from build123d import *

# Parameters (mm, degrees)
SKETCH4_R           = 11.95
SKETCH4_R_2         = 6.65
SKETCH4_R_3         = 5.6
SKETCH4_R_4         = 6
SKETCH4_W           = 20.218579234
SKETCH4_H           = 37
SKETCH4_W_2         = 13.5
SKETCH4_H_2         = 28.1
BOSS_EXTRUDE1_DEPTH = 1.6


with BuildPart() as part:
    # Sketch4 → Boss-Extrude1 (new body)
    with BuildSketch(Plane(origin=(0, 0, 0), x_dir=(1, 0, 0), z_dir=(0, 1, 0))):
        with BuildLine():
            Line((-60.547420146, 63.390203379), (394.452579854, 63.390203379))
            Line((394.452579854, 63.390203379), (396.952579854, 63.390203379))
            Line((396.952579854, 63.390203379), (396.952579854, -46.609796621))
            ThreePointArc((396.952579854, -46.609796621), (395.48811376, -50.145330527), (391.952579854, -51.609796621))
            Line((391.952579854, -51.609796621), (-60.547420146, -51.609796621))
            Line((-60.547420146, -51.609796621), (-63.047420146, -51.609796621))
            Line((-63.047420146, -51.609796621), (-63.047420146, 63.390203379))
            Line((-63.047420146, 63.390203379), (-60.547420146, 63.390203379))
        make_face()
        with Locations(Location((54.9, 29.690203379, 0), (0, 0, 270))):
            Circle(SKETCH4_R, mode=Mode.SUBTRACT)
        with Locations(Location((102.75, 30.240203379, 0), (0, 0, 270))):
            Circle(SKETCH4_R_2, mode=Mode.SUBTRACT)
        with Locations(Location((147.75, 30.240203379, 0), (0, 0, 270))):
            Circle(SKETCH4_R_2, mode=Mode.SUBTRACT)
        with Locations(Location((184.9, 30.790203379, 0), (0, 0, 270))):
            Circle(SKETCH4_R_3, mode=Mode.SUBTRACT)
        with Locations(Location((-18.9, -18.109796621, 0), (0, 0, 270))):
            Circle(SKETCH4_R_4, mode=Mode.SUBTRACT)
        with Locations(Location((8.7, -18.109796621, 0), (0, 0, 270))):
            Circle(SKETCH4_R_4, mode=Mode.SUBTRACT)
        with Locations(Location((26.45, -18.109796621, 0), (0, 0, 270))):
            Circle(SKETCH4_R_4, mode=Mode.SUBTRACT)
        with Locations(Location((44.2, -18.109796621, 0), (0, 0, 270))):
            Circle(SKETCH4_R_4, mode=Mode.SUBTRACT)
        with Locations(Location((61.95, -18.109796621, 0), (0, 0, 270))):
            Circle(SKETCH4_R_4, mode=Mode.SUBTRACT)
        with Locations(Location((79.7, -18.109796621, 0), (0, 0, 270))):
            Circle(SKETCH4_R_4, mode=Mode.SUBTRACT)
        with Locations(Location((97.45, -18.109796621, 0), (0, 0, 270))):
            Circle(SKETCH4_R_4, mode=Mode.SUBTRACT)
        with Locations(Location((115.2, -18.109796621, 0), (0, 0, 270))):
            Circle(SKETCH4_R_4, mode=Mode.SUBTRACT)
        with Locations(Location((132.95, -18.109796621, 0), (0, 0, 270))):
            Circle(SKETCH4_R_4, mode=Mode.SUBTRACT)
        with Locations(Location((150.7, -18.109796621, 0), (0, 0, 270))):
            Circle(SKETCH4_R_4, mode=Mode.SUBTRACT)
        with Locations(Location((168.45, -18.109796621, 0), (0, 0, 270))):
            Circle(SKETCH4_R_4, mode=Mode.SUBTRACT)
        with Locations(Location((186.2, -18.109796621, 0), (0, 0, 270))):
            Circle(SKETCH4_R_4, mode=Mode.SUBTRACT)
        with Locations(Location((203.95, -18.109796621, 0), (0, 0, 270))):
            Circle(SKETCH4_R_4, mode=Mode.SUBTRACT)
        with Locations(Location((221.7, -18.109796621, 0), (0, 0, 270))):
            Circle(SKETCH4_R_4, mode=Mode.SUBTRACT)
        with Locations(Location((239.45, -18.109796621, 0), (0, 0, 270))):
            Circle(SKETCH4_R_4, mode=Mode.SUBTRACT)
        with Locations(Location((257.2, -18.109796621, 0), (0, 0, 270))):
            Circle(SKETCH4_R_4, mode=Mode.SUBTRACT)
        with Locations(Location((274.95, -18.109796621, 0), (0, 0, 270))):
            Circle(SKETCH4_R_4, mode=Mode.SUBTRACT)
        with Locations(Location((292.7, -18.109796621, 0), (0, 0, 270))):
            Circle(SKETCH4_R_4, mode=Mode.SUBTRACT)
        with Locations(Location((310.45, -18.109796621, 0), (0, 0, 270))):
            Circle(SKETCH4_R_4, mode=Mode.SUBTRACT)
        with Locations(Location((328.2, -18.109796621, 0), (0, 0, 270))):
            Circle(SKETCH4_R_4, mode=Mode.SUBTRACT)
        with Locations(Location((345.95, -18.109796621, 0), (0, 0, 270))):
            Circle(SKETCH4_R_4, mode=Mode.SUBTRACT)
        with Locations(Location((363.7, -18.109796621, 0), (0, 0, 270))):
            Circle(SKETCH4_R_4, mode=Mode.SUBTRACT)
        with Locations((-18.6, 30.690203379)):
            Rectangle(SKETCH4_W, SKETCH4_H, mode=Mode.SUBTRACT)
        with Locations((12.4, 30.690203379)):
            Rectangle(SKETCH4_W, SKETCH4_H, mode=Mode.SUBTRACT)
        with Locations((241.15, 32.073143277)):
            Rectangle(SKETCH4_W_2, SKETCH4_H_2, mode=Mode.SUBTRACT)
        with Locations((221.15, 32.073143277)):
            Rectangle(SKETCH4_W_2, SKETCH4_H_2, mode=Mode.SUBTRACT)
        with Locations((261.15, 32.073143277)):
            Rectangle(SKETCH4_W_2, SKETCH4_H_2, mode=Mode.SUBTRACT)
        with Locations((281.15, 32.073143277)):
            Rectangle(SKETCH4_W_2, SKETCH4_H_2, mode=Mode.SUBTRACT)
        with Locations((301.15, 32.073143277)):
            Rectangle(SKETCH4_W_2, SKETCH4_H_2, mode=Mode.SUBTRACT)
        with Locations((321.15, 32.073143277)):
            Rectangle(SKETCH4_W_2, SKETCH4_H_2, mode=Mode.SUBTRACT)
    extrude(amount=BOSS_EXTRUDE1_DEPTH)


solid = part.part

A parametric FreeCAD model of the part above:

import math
import FreeCAD as App
import Part
import Sketcher
from FreeCAD import Vector

doc = App.newDocument("Part")
params = doc.addObject("Spreadsheet::Sheet", "Params")
for row, (alias, value) in enumerate([
    ("sketch1_diameter", "12 mm"),
    ("sketch1_radius", "5 mm"),
    ("sketch1_diameter2", "11.2 mm"),
    ("sketch1_diameter3", "13.3 mm"),
    ("sketch1_diameter4", "23.9 mm"),
    ("pad1_length", "1.6 mm"),
], start=1):
    params.set(f"A{row}", alias)
    params.set(f"B{row}", "=" + value)
    params.setAlias(f"B{row}", alias)

body = doc.addObject("PartDesign::Body", "Body")

# Sketch on XZ plane
sketch1 = body.newObject("Sketcher::SketchObject", "Sketch")
sketch1.AttachmentSupport = (doc.getObject("XZ_Plane"), [""])
sketch1.MapMode = "FlatFace"
sketch1.addGeometry(Part.LineSegment(Vector(397, 47, 0), Vector(397, -63, 0)), False)
sketch1.addGeometry(Part.LineSegment(Vector(397, -63, 0), Vector(-63, -63, 0)), False)
sketch1.addGeometry(Part.LineSegment(Vector(-63, -63, 0), Vector(-63, 52, 0)), False)
sketch1.addGeometry(Part.LineSegment(Vector(-63, 52, 0), Vector(392, 52, 0)), False)
sketch1.addGeometry(Part.ArcOfCircle(Part.Circle(Vector(392, 47, 0), Vector(0, 0, 1), 5), math.radians(0), math.radians(90)), False)
sketch1.addGeometry(Part.Circle(Vector(364, 18, 0), Vector(0, 0, 1), 6), False)
sketch1.addGeometry(Part.Circle(Vector(346, 18, 0), Vector(0, 0, 1), 6), False)
sketch1.addGeometry(Part.Circle(Vector(328, 18, 0), Vector(0, 0, 1), 6), False)
sketch1.addGeometry(Part.Circle(Vector(310, 18, 0), Vector(0, 0, 1), 6), False)
sketch1.addGeometry(Part.Circle(Vector(293, 18, 0), Vector(0, 0, 1), 6), False)
sketch1.addGeometry(Part.Circle(Vector(275, 18, 0), Vector(0, 0, 1), 6), False)
sketch1.addGeometry(Part.Circle(Vector(257, 18, 0), Vector(0, 0, 1), 6), False)
sketch1.addGeometry(Part.Circle(Vector(239, 18, 0), Vector(0, 0, 1), 6), False)
sketch1.addGeometry(Part.Circle(Vector(222, 18, 0), Vector(0, 0, 1), 6), False)
sketch1.addGeometry(Part.Circle(Vector(204, 18, 0), Vector(0, 0, 1), 6), False)
sketch1.addGeometry(Part.Circle(Vector(186, 18, 0), Vector(0, 0, 1), 6), False)
sketch1.addGeometry(Part.Circle(Vector(168, 18, 0), Vector(0, 0, 1), 6), False)
sketch1.addGeometry(Part.Circle(Vector(151, 18, 0), Vector(0, 0, 1), 6), False)
sketch1.addGeometry(Part.Circle(Vector(133, 18, 0), Vector(0, 0, 1), 6), False)
sketch1.addGeometry(Part.Circle(Vector(115, 18, 0), Vector(0, 0, 1), 6), False)
sketch1.addGeometry(Part.Circle(Vector(97, 18, 0), Vector(0, 0, 1), 6), False)
sketch1.addGeometry(Part.Circle(Vector(80, 18, 0), Vector(0, 0, 1), 6), False)
sketch1.addGeometry(Part.Circle(Vector(62, 18, 0), Vector(0, 0, 1), 6), False)
sketch1.addGeometry(Part.Circle(Vector(44, 18, 0), Vector(0, 0, 1), 6), False)
sketch1.addGeometry(Part.Circle(Vector(26, 18, 0), Vector(0, 0, 1), 6), False)
sketch1.addGeometry(Part.Circle(Vector(9, 18, 0), Vector(0, 0, 1), 6), False)
sketch1.addGeometry(Part.Circle(Vector(-19, 18, 0), Vector(0, 0, 1), 6), False)
sketch1.addGeometry(Part.Circle(Vector(185, -31, 0), Vector(0, 0, 1), 6), False)
sketch1.addGeometry(Part.LineSegment(Vector(314, -18, 0), Vector(314, -46, 0)), False)
sketch1.addGeometry(Part.LineSegment(Vector(314, -46, 0), Vector(328, -46, 0)), False)
sketch1.addGeometry(Part.LineSegment(Vector(328, -46, 0), Vector(328, -18, 0)), False)
sketch1.addGeometry(Part.LineSegment(Vector(328, -18, 0), Vector(314, -18, 0)), False)
sketch1.addGeometry(Part.LineSegment(Vector(294, -18, 0), Vector(294, -46, 0)), False)
sketch1.addGeometry(Part.LineSegment(Vector(294, -46, 0), Vector(308, -46, 0)), False)
sketch1.addGeometry(Part.LineSegment(Vector(308, -46, 0), Vector(308, -18, 0)), False)
sketch1.addGeometry(Part.LineSegment(Vector(308, -18, 0), Vector(294, -18, 0)), False)
sketch1.addGeometry(Part.LineSegment(Vector(274, -18, 0), Vector(274, -46, 0)), False)
sketch1.addGeometry(Part.LineSegment(Vector(274, -46, 0), Vector(288, -46, 0)), False)
sketch1.addGeometry(Part.LineSegment(Vector(288, -46, 0), Vector(288, -18, 0)), False)
sketch1.addGeometry(Part.LineSegment(Vector(288, -18, 0), Vector(274, -18, 0)), False)
sketch1.addGeometry(Part.LineSegment(Vector(254, -18, 0), Vector(254, -46, 0)), False)
sketch1.addGeometry(Part.LineSegment(Vector(254, -46, 0), Vector(268, -46, 0)), False)
sketch1.addGeometry(Part.LineSegment(Vector(268, -46, 0), Vector(268, -18, 0)), False)
sketch1.addGeometry(Part.LineSegment(Vector(268, -18, 0), Vector(254, -18, 0)), False)
sketch1.addGeometry(Part.LineSegment(Vector(234, -18, 0), Vector(234, -46, 0)), False)
sketch1.addGeometry(Part.LineSegment(Vector(234, -46, 0), Vector(248, -46, 0)), False)
sketch1.addGeometry(Part.LineSegment(Vector(248, -46, 0), Vector(248, -18, 0)), False)
sketch1.addGeometry(Part.LineSegment(Vector(248, -18, 0), Vector(234, -18, 0)), False)
sketch1.addGeometry(Part.LineSegment(Vector(214, -18, 0), Vector(214, -46, 0)), False)
sketch1.addGeometry(Part.LineSegment(Vector(214, -46, 0), Vector(228, -46, 0)), False)
sketch1.addGeometry(Part.LineSegment(Vector(228, -46, 0), Vector(228, -18, 0)), False)
sketch1.addGeometry(Part.LineSegment(Vector(228, -18, 0), Vector(214, -18, 0)), False)
sketch1.addGeometry(Part.Circle(Vector(148, -30, 0), Vector(0, 0, 1), 7), False)
sketch1.addGeometry(Part.Circle(Vector(103, -30, 0), Vector(0, 0, 1), 7), False)
sketch1.addGeometry(Part.Circle(Vector(55, -30, 0), Vector(0, 0, 1), 12), False)
sketch1.addGeometry(Part.LineSegment(Vector(2, -12, 0), Vector(2, -49, 0)), False)
sketch1.addGeometry(Part.LineSegment(Vector(2, -49, 0), Vector(23, -49, 0)), False)
sketch1.addGeometry(Part.LineSegment(Vector(23, -49, 0), Vector(23, -12, 0)), False)
sketch1.addGeometry(Part.LineSegment(Vector(23, -12, 0), Vector(2, -12, 0)), False)
sketch1.addGeometry(Part.LineSegment(Vector(-29, -12, 0), Vector(-29, -49, 0)), False)
sketch1.addGeometry(Part.LineSegment(Vector(-29, -49, 0), Vector(-8, -49, 0)), False)
sketch1.addGeometry(Part.LineSegment(Vector(-8, -49, 0), Vector(-8, -12, 0)), False)
sketch1.addGeometry(Part.LineSegment(Vector(-8, -12, 0), Vector(-29, -12, 0)), False)
sketch1.addConstraint(Sketcher.Constraint("Coincident", 0, 2, 1, 1))
sketch1.addConstraint(Sketcher.Constraint("Coincident", 1, 2, 2, 1))
sketch1.addConstraint(Sketcher.Constraint("Coincident", 2, 2, 3, 1))
sketch1.addConstraint(Sketcher.Constraint("Tangent", 3, 2, 4, 2))
sketch1.addConstraint(Sketcher.Constraint("Tangent", 4, 1, 0, 1))
sketch1.addConstraint(Sketcher.Constraint("Coincident", 28, 2, 29, 1))
sketch1.addConstraint(Sketcher.Constraint("Coincident", 29, 2, 30, 1))
sketch1.addConstraint(Sketcher.Constraint("Coincident", 30, 2, 31, 1))
sketch1.addConstraint(Sketcher.Constraint("Coincident", 31, 2, 28, 1))
sketch1.addConstraint(Sketcher.Constraint("Coincident", 32, 2, 33, 1))
sketch1.addConstraint(Sketcher.Constraint("Coincident", 33, 2, 34, 1))
sketch1.addConstraint(Sketcher.Constraint("Coincident", 34, 2, 35, 1))
sketch1.addConstraint(Sketcher.Constraint("Coincident", 35, 2, 32, 1))
sketch1.addConstraint(Sketcher.Constraint("Coincident", 36, 2, 37, 1))
sketch1.addConstraint(Sketcher.Constraint("Coincident", 37, 2, 38, 1))
sketch1.addConstraint(Sketcher.Constraint("Coincident", 38, 2, 39, 1))
sketch1.addConstraint(Sketcher.Constraint("Coincident", 39, 2, 36, 1))
sketch1.addConstraint(Sketcher.Constraint("Coincident", 40, 2, 41, 1))
sketch1.addConstraint(Sketcher.Constraint("Coincident", 41, 2, 42, 1))
sketch1.addConstraint(Sketcher.Constraint("Coincident", 42, 2, 43, 1))
sketch1.addConstraint(Sketcher.Constraint("Coincident", 43, 2, 40, 1))
sketch1.addConstraint(Sketcher.Constraint("Coincident", 44, 2, 45, 1))
sketch1.addConstraint(Sketcher.Constraint("Coincident", 45, 2, 46, 1))
sketch1.addConstraint(Sketcher.Constraint("Coincident", 46, 2, 47, 1))
sketch1.addConstraint(Sketcher.Constraint("Coincident", 47, 2, 44, 1))
sketch1.addConstraint(Sketcher.Constraint("Coincident", 48, 2, 49, 1))
sketch1.addConstraint(Sketcher.Constraint("Coincident", 49, 2, 50, 1))
sketch1.addConstraint(Sketcher.Constraint("Coincident", 50, 2, 51, 1))
sketch1.addConstraint(Sketcher.Constraint("Coincident", 51, 2, 48, 1))
sketch1.addConstraint(Sketcher.Constraint("Coincident", 55, 2, 56, 1))
sketch1.addConstraint(Sketcher.Constraint("Coincident", 56, 2, 57, 1))
sketch1.addConstraint(Sketcher.Constraint("Coincident", 57, 2, 58, 1))
sketch1.addConstraint(Sketcher.Constraint("Coincident", 58, 2, 55, 1))
sketch1.addConstraint(Sketcher.Constraint("Coincident", 59, 2, 60, 1))
sketch1.addConstraint(Sketcher.Constraint("Coincident", 60, 2, 61, 1))
sketch1.addConstraint(Sketcher.Constraint("Coincident", 61, 2, 62, 1))
sketch1.addConstraint(Sketcher.Constraint("Coincident", 62, 2, 59, 1))
sketch1.addConstraint(Sketcher.Constraint("Vertical", 0))
sketch1.addConstraint(Sketcher.Constraint("Horizontal", 1))
sketch1.addConstraint(Sketcher.Constraint("Vertical", 2))
sketch1.addConstraint(Sketcher.Constraint("Horizontal", 3))
sketch1.addConstraint(Sketcher.Constraint("Vertical", 28))
sketch1.addConstraint(Sketcher.Constraint("Horizontal", 29))
sketch1.addConstraint(Sketcher.Constraint("Vertical", 30))
sketch1.addConstraint(Sketcher.Constraint("Horizontal", 31))
sketch1.addConstraint(Sketcher.Constraint("Vertical", 32))
sketch1.addConstraint(Sketcher.Constraint("Horizontal", 33))
sketch1.addConstraint(Sketcher.Constraint("Vertical", 34))
sketch1.addConstraint(Sketcher.Constraint("Horizontal", 35))
sketch1.addConstraint(Sketcher.Constraint("Vertical", 36))
sketch1.addConstraint(Sketcher.Constraint("Horizontal", 37))
sketch1.addConstraint(Sketcher.Constraint("Vertical", 38))
sketch1.addConstraint(Sketcher.Constraint("Horizontal", 39))
sketch1.addConstraint(Sketcher.Constraint("Vertical", 40))
sketch1.addConstraint(Sketcher.Constraint("Horizontal", 41))
sketch1.addConstraint(Sketcher.Constraint("Vertical", 42))
sketch1.addConstraint(Sketcher.Constraint("Horizontal", 43))
sketch1.addConstraint(Sketcher.Constraint("Vertical", 44))
sketch1.addConstraint(Sketcher.Constraint("Horizontal", 45))
sketch1.addConstraint(Sketcher.Constraint("Vertical", 46))
sketch1.addConstraint(Sketcher.Constraint("Horizontal", 47))
sketch1.addConstraint(Sketcher.Constraint("Vertical", 48))
sketch1.addConstraint(Sketcher.Constraint("Horizontal", 49))
sketch1.addConstraint(Sketcher.Constraint("Vertical", 50))
sketch1.addConstraint(Sketcher.Constraint("Horizontal", 51))
sketch1.addConstraint(Sketcher.Constraint("Vertical", 55))
sketch1.addConstraint(Sketcher.Constraint("Horizontal", 56))
sketch1.addConstraint(Sketcher.Constraint("Vertical", 57))
sketch1.addConstraint(Sketcher.Constraint("Horizontal", 58))
sketch1.addConstraint(Sketcher.Constraint("Vertical", 59))
sketch1.addConstraint(Sketcher.Constraint("Horizontal", 60))
sketch1.addConstraint(Sketcher.Constraint("Vertical", 61))
sketch1.addConstraint(Sketcher.Constraint("Horizontal", 62))
sketch1.addConstraint(Sketcher.Constraint("Equal", 5, 6))
sketch1.addConstraint(Sketcher.Constraint("Equal", 6, 7))
sketch1.addConstraint(Sketcher.Constraint("Equal", 7, 8))
sketch1.addConstraint(Sketcher.Constraint("Equal", 8, 9))
sketch1.addConstraint(Sketcher.Constraint("Equal", 9, 10))
sketch1.addConstraint(Sketcher.Constraint("Equal", 10, 11))
sketch1.addConstraint(Sketcher.Constraint("Equal", 11, 12))
sketch1.addConstraint(Sketcher.Constraint("Equal", 12, 13))
sketch1.addConstraint(Sketcher.Constraint("Equal", 13, 14))
sketch1.addConstraint(Sketcher.Constraint("Equal", 14, 15))
sketch1.addConstraint(Sketcher.Constraint("Equal", 15, 16))
sketch1.addConstraint(Sketcher.Constraint("Equal", 16, 17))
sketch1.addConstraint(Sketcher.Constraint("Equal", 17, 18))
sketch1.addConstraint(Sketcher.Constraint("Equal", 18, 19))
sketch1.addConstraint(Sketcher.Constraint("Equal", 19, 20))
sketch1.addConstraint(Sketcher.Constraint("Equal", 20, 21))
sketch1.addConstraint(Sketcher.Constraint("Equal", 21, 22))
sketch1.addConstraint(Sketcher.Constraint("Equal", 22, 23))
sketch1.addConstraint(Sketcher.Constraint("Equal", 23, 24))
sketch1.addConstraint(Sketcher.Constraint("Equal", 24, 25))
sketch1.addConstraint(Sketcher.Constraint("Equal", 25, 26))
sketch1.addConstraint(Sketcher.Constraint("Equal", 52, 53))
sketch1.addConstraint(Sketcher.Constraint("Horizontal", 5, 3, 6, 3))
sketch1.addConstraint(Sketcher.Constraint("Horizontal", 6, 3, 7, 3))
sketch1.addConstraint(Sketcher.Constraint("Horizontal", 7, 3, 8, 3))
sketch1.addConstraint(Sketcher.Constraint("Horizontal", 8, 3, 9, 3))
sketch1.addConstraint(Sketcher.Constraint("Horizontal", 9, 3, 10, 3))
sketch1.addConstraint(Sketcher.Constraint("Horizontal", 10, 3, 11, 3))
sketch1.addConstraint(Sketcher.Constraint("Horizontal", 11, 3, 12, 3))
sketch1.addConstraint(Sketcher.Constraint("Horizontal", 12, 3, 13, 3))
sketch1.addConstraint(Sketcher.Constraint("Horizontal", 13, 3, 14, 3))
sketch1.addConstraint(Sketcher.Constraint("Horizontal", 14, 3, 15, 3))
sketch1.addConstraint(Sketcher.Constraint("Horizontal", 15, 3, 16, 3))
sketch1.addConstraint(Sketcher.Constraint("Horizontal", 16, 3, 17, 3))
sketch1.addConstraint(Sketcher.Constraint("Horizontal", 17, 3, 18, 3))
sketch1.addConstraint(Sketcher.Constraint("Horizontal", 18, 3, 19, 3))
sketch1.addConstraint(Sketcher.Constraint("Horizontal", 19, 3, 20, 3))
sketch1.addConstraint(Sketcher.Constraint("Horizontal", 20, 3, 21, 3))
sketch1.addConstraint(Sketcher.Constraint("Horizontal", 21, 3, 22, 3))
sketch1.addConstraint(Sketcher.Constraint("Horizontal", 22, 3, 23, 3))
sketch1.addConstraint(Sketcher.Constraint("Horizontal", 23, 3, 24, 3))
sketch1.addConstraint(Sketcher.Constraint("Horizontal", 24, 3, 25, 3))
sketch1.addConstraint(Sketcher.Constraint("Horizontal", 25, 3, 26, 3))
sketch1.addConstraint(Sketcher.Constraint("Horizontal", 52, 3, 53, 3))
sketch1.addConstraint(Sketcher.Constraint("Horizontal", 29, 2, 32, 2))
sketch1.addConstraint(Sketcher.Constraint("Horizontal", 31, 2, 34, 2))
sketch1.addConstraint(Sketcher.Constraint("Horizontal", 33, 2, 36, 2))
sketch1.addConstraint(Sketcher.Constraint("Horizontal", 35, 2, 38, 2))
sketch1.addConstraint(Sketcher.Constraint("Horizontal", 37, 2, 40, 2))
sketch1.addConstraint(Sketcher.Constraint("Horizontal", 39, 2, 42, 2))
sketch1.addConstraint(Sketcher.Constraint("Horizontal", 41, 2, 44, 2))
sketch1.addConstraint(Sketcher.Constraint("Horizontal", 43, 2, 46, 2))
sketch1.addConstraint(Sketcher.Constraint("Horizontal", 45, 2, 48, 2))
sketch1.addConstraint(Sketcher.Constraint("Horizontal", 47, 2, 50, 2))
sketch1.addConstraint(Sketcher.Constraint("Horizontal", 56, 2, 59, 2))
sketch1.addConstraint(Sketcher.Constraint("Horizontal", 58, 2, 61, 2))
sketch1.addConstraint(Sketcher.Constraint("Equal", 31, 33))
sketch1.addConstraint(Sketcher.Constraint("Equal", 35, 37))
sketch1.addConstraint(Sketcher.Constraint("Equal", 39, 41))
sketch1.addConstraint(Sketcher.Constraint("Equal", 43, 45))
sketch1.addConstraint(Sketcher.Constraint("Equal", 47, 49))
sketch1.addConstraint(Sketcher.Constraint("Equal", 58, 60))
sketch1.addConstraint(Sketcher.Constraint("Diameter", 5, 12.0))
sketch1.addConstraint(Sketcher.Constraint("Radius", 4, 5.0))
sketch1.addConstraint(Sketcher.Constraint("Diameter", 27, 11.2))
sketch1.addConstraint(Sketcher.Constraint("Diameter", 52, 13.3))
sketch1.addConstraint(Sketcher.Constraint("Diameter", 54, 23.9))
sketch1.addConstraint(Sketcher.Constraint("DistanceX", 1, 2, 1, 1, 460.0))
sketch1.addConstraint(Sketcher.Constraint("DistanceY", 0, 2, 0, 1, 110.0))
sketch1.addConstraint(Sketcher.Constraint("DistanceY", 55, 2, 55, 1, 37.0))
sketch1.addConstraint(Sketcher.Constraint("DistanceX", 29, 1, 29, 2, 13.5))
sketch1.addConstraint(Sketcher.Constraint("DistanceY", 28, 2, 28, 1, 28.1))
sketch1.addConstraint(Sketcher.Constraint("DistanceX", -1, 1, 5, 3, 363.7))
sketch1.addConstraint(Sketcher.Constraint("DistanceX", -1, 1, 7, 3, 328.2))
sketch1.addConstraint(Sketcher.Constraint("DistanceX", -1, 1, 9, 3, 292.7))
sketch1.addConstraint(Sketcher.Constraint("DistanceX", -1, 1, 11, 3, 257.2))
sketch1.addConstraint(Sketcher.Constraint("DistanceX", -1, 1, 13, 3, 221.7))
sketch1.addConstraint(Sketcher.Constraint("DistanceX", -1, 1, 15, 3, 186.2))
sketch1.addConstraint(Sketcher.Constraint("DistanceX", -1, 1, 17, 3, 150.7))
sketch1.addConstraint(Sketcher.Constraint("DistanceX", -1, 1, 19, 3, 115.2))
sketch1.addConstraint(Sketcher.Constraint("DistanceX", -1, 1, 21, 3, 79.7))
sketch1.addConstraint(Sketcher.Constraint("DistanceX", -1, 1, 23, 3, 44.2))
sketch1.addConstraint(Sketcher.Constraint("DistanceX", -1, 1, 25, 3, 8.7))
sketch1.addConstraint(Sketcher.Constraint("DistanceX", 26, 3, -1, 1, 18.9))
sketch1.addConstraint(Sketcher.Constraint("DistanceX", -1, 1, 27, 3, 184.9))
sketch1.addConstraint(Sketcher.Constraint("DistanceX", -1, 1, 54, 3, 54.9))
sketch1.addConstraint(Sketcher.Constraint("DistanceX", -1, 1, 28, 2, 314.4))
sketch1.addConstraint(Sketcher.Constraint("DistanceX", -1, 1, 32, 2, 294.4))
sketch1.addConstraint(Sketcher.Constraint("DistanceX", -1, 1, 36, 2, 274.4))
sketch1.addConstraint(Sketcher.Constraint("DistanceX", -1, 1, 40, 2, 254.4))
sketch1.addConstraint(Sketcher.Constraint("DistanceX", -1, 1, 44, 2, 234.4))
sketch1.addConstraint(Sketcher.Constraint("DistanceX", -1, 1, 48, 2, 214.4))
sketch1.addConstraint(Sketcher.Constraint("DistanceX", -1, 1, 6, 3, 345.95))
sketch1.addConstraint(Sketcher.Constraint("DistanceX", -1, 1, 8, 3, 310.45))
sketch1.addConstraint(Sketcher.Constraint("DistanceX", -1, 1, 10, 3, 274.95))
sketch1.addConstraint(Sketcher.Constraint("DistanceX", -1, 1, 12, 3, 239.45))
sketch1.addConstraint(Sketcher.Constraint("DistanceX", -1, 1, 14, 3, 203.95))
sketch1.addConstraint(Sketcher.Constraint("DistanceX", -1, 1, 16, 3, 168.45))
sketch1.addConstraint(Sketcher.Constraint("DistanceX", -1, 1, 18, 3, 132.95))
sketch1.addConstraint(Sketcher.Constraint("DistanceX", -1, 1, 20, 3, 97.45))
sketch1.addConstraint(Sketcher.Constraint("DistanceX", -1, 1, 22, 3, 61.95))
sketch1.addConstraint(Sketcher.Constraint("DistanceX", -1, 1, 24, 3, 26.45))
sketch1.addConstraint(Sketcher.Constraint("DistanceX", -1, 1, 52, 3, 147.75))
sketch1.addConstraint(Sketcher.Constraint("DistanceX", -1, 1, 53, 3, 102.75))
sketch1.addConstraint(Sketcher.Constraint("DistanceX", 56, 1, 56, 2, 20.218579))
sketch1.addConstraint(Sketcher.Constraint("DistanceX", -1, 1, 4, 3, 391.95258))
sketch1.addConstraint(Sketcher.Constraint("DistanceX", -1, 1, 55, 2, 2.29071))
sketch1.addConstraint(Sketcher.Constraint("DistanceX", 59, 2, -1, 1, 28.70929))
sketch1.addConstraint(Sketcher.Constraint("DistanceY", -1, 1, 4, 3, 46.609797))
sketch1.addConstraint(Sketcher.Constraint("DistanceY", -1, 1, 5, 3, 18.109797))
sketch1.addConstraint(Sketcher.Constraint("DistanceY", 27, 3, -1, 1, 30.790203))
sketch1.addConstraint(Sketcher.Constraint("DistanceY", 52, 3, -1, 1, 30.240203))
sketch1.addConstraint(Sketcher.Constraint("DistanceY", 54, 3, -1, 1, 29.690203))
sketch1.addConstraint(Sketcher.Constraint("DistanceY", 28, 2, -1, 1, 46.123143))
sketch1.addConstraint(Sketcher.Constraint("DistanceY", 55, 2, -1, 1, 49.190203))
sketch1.setExpression("Constraints[135]", "Params.sketch1_diameter")
sketch1.setExpression("Constraints[136]", "Params.sketch1_radius")
sketch1.setExpression("Constraints[137]", "Params.sketch1_diameter2")
sketch1.setExpression("Constraints[138]", "Params.sketch1_diameter3")
sketch1.setExpression("Constraints[139]", "Params.sketch1_diameter4")
pad1 = body.newObject("PartDesign::Pad", "Pad")
pad1.Profile = sketch1
pad1.setExpression("Length", "Params.pad1_length")
pad1.Reversed = True

doc.recompute()
